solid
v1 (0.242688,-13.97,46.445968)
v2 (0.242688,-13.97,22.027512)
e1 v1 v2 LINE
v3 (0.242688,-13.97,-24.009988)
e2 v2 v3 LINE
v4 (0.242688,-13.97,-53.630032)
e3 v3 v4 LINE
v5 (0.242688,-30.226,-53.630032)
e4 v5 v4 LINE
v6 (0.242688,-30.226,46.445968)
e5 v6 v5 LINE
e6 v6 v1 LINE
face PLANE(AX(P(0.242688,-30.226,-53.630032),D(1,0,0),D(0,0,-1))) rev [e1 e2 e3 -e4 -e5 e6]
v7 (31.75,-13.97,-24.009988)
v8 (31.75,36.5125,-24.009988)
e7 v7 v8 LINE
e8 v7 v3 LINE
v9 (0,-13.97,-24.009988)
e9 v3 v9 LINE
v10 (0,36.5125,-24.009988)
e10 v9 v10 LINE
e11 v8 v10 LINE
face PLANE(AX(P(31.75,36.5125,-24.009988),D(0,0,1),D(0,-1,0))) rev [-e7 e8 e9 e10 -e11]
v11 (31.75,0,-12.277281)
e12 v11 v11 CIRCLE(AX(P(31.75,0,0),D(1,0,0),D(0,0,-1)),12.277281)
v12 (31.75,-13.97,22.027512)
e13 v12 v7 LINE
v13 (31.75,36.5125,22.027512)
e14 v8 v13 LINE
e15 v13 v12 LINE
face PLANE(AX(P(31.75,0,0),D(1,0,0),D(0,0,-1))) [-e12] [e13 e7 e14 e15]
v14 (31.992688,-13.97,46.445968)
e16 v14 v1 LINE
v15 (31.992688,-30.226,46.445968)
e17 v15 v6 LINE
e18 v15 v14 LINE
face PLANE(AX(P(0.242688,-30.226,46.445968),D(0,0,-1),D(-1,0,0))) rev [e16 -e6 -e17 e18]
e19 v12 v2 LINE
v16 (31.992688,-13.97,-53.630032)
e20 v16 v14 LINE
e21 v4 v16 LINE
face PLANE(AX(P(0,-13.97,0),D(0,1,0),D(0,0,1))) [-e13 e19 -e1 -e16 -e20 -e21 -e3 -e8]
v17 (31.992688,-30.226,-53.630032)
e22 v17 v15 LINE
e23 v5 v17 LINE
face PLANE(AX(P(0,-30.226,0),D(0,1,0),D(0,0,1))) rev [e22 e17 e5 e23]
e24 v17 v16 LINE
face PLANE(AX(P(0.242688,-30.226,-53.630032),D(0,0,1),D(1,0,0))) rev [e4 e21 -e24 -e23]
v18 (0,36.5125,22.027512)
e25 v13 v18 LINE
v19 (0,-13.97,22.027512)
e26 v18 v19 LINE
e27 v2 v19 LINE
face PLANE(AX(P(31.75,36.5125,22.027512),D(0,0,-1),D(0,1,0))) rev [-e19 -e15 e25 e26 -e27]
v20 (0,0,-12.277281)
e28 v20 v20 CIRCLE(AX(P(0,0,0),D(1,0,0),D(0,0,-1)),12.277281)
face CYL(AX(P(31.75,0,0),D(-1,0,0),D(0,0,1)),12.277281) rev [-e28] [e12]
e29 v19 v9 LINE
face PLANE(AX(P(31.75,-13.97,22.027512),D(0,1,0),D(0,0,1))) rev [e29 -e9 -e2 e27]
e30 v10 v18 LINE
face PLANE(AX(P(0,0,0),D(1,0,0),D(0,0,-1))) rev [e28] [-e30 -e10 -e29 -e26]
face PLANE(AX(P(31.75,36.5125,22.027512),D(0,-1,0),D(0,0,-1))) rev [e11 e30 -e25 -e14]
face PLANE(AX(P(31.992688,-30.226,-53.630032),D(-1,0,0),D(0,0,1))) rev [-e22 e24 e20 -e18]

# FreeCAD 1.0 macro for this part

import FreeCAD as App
import Part
import Sketcher
Q = App.Units.Quantity


def add_polygon(sketch, points):
    """Adds a closed chain of lines whose ends are joined by coincident constraints."""
    first, n = sketch.GeometryCount, len(points)
    for a, b in zip(points, points[1:] + points[:1]):
        sketch.addGeometry(Part.LineSegment(App.Vector(*a, 0), App.Vector(*b, 0)), False)
    for i in range(n):
        sketch.addConstraint(Sketcher.Constraint("Coincident", first + i, 2, first + (i + 1) % n, 1))

doc = App.newDocument("Part")
body = doc.addObject("PartDesign::Body", "Body")

# Sketch on YZ plane
sketch1 = doc.addObject("Sketcher::SketchObject", "Sketch")
body.addObject(sketch1)
sketch1.AttachmentSupport = (doc.YZ_Plane, [""])
sketch1.MapMode = "FlatFace"
add_polygon(sketch1, [(37, 22), (-14, 22), (-14, -24), (37, -24)])  # lines 0-3
sketch1.addGeometry(Part.Circle(App.Vector(0, 0, 0), App.Vector(0, 0, 1), 12), False)  # 4
sketch1.addConstraint([
    Sketcher.Constraint("Horizontal", 0),
    Sketcher.Constraint("Vertical", 1),
    Sketcher.Constraint("Horizontal", 2),
    Sketcher.Constraint("Vertical", 3),
    Sketcher.Constraint("Coincident", 4, 3, -1, 1),
    Sketcher.Constraint("DistanceY", 1, 2, 1, 1, Q("1.8125 in")),
    Sketcher.Constraint("DistanceX", 0, 2, -1, 1, Q("0.55 in")),
    Sketcher.Constraint("Diameter", 4, Q("24.554562 mm")),
    Sketcher.Constraint("DistanceX", 0, 2, 0, 1, Q("1.9875 in")),
    Sketcher.Constraint("DistanceY", -1, 1, 0, 2, Q("22.027512 mm")),
])
pad1 = doc.addObject("PartDesign::Pad", "Pad")
body.addObject(pad1)
pad1.Profile = sketch1
pad1.Length = Q("1.25 in")

# Sketch on XZ plane
sketch2 = doc.addObject("Sketcher::SketchObject", "Sketch001")
body.addObject(sketch2)
sketch2.AttachmentSupport = (doc.XZ_Plane, [""])
sketch2.MapMode = "FlatFace"
sketch2.AttachmentOffset = App.Placement(App.Vector(0, 0, 0.55 * 25.4), App.Rotation())
add_polygon(sketch2, [(32, -54), (32, 46), (0, 46), (0, -54)])  # lines 0-3
sketch2.addConstraint([
    Sketcher.Constraint("Vertical", 0),
    Sketcher.Constraint("Horizontal", 1),
    Sketcher.Constraint("Vertical", 2),
    Sketcher.Constraint("Horizontal", 3),
    Sketcher.Constraint("DistanceX", 1, 2, 1, 1, Q("1.25 in")),
    Sketcher.Constraint("DistanceY", 0, 1, 0, 2, Q("3.94 in")),
    Sketcher.Constraint("DistanceX", -1, 1, 0, 2, Q("31.992688 mm")),
    Sketcher.Constraint("DistanceY", -1, 1, 0, 2, Q("46.445968 mm")),
])
pad2 = doc.addObject("PartDesign::Pad", "Pad001")
body.addObject(pad2)
pad2.Profile = sketch2
pad2.Length = Q("0.64 in")

doc.recompute()
